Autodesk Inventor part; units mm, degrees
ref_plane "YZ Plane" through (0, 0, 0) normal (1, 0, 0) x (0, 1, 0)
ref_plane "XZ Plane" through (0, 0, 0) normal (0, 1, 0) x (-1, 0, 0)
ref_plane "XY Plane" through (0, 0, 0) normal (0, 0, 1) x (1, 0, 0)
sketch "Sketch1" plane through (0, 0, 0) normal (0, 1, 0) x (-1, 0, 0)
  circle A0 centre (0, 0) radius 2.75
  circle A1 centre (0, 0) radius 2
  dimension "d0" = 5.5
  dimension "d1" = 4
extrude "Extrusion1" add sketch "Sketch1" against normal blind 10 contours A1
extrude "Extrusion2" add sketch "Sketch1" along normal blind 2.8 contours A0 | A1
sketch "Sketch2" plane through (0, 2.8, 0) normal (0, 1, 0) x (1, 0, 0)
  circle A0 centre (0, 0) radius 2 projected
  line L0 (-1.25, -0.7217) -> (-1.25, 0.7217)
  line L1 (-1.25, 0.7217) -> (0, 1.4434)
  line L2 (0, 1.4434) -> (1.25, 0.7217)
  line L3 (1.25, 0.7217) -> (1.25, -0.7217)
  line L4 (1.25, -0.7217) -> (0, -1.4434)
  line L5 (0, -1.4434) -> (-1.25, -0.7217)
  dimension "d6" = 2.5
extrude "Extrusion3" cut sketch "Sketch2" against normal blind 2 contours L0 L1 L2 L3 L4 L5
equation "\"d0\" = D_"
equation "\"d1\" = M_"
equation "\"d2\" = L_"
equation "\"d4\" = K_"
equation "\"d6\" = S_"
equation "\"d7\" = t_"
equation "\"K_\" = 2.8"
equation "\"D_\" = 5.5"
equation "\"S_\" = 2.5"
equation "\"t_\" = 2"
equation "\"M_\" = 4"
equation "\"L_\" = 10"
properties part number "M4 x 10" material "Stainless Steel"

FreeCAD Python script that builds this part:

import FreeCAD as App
import Part
import Sketcher
from FreeCAD import Vector
Q = App.Units.Quantity

doc = App.newDocument("Part")
body = doc.addObject("PartDesign::Body", "Body")

sketch1 = body.newObject("Sketcher::SketchObject", "Sketch")
sketch1.AttachmentSupport = (doc.getObject("XZ_Plane"), [""])
sketch1.MapMode = "FlatFace"
sketch1.addGeometry(Part.Circle(Vector(0, 0, 0), Vector(0, 0, 1), 2), False)
sketch1.addConstraint([
    Sketcher.Constraint("Coincident", 0, 3, -1, 1),
    Sketcher.Constraint("Diameter", 0, Q("4 mm")),
])
pad1 = body.newObject("PartDesign::Pad", "Pad")
pad1.Profile = sketch1
pad1.Length = 10

sketch2 = body.newObject("Sketcher::SketchObject", "Sketch001")
sketch2.AttachmentSupport = (doc.getObject("XZ_Plane"), [""])
sketch2.MapMode = "FlatFace"
sketch2.addGeometry(Part.Circle(Vector(0, 0, 0), Vector(0, 0, 1), 2.8), False)
sketch2.addConstraint([
    Sketcher.Constraint("Coincident", 0, 3, -1, 1),
    Sketcher.Constraint("Diameter", 0, Q("5.5 mm")),
])
pad2 = body.newObject("PartDesign::Pad", "Pad001")
pad2.Profile = sketch2
pad2.Length = 2.8
pad2.Reversed = True

sketch3 = body.newObject("Sketcher::SketchObject", "Sketch002")
sketch3.AttachmentSupport = (doc.getObject("XZ_Plane"), [""])
sketch3.MapMode = "FlatFace"
sketch3.AttachmentOffset = App.Placement(Vector(0, 0, -2.8), App.Rotation())
sketch3.addGeometry([
    Part.LineSegment(Vector(-1.2, -0.7, 0), Vector(-1.2, 0.7, 0)),
    Part.LineSegment(Vector(-1.2, 0.7, 0), Vector(0, 1.4, 0)),
    Part.LineSegment(Vector(0, 1.4, 0), Vector(1.2, 0.7, 0)),
    Part.LineSegment(Vector(1.2, 0.7, 0), Vector(1.2, -0.7, 0)),
    Part.LineSegment(Vector(1.2, -0.7, 0), Vector(0, -1.4, 0)),
    Part.LineSegment(Vector(0, -1.4, 0), Vector(-1.2, -0.7, 0)),
], False)
sketch3.addConstraint([
    Sketcher.Constraint("Coincident", 0, 2, 1, 1),
    Sketcher.Constraint("Coincident", 1, 2, 2, 1),
    Sketcher.Constraint("Coincident", 2, 2, 3, 1),
    Sketcher.Constraint("Coincident", 3, 2, 4, 1),
    Sketcher.Constraint("Coincident", 4, 2, 5, 1),
    Sketcher.Constraint("Coincident", 5, 2, 0, 1),
    Sketcher.Constraint("Vertical", 0),
    Sketcher.Constraint("Vertical", 3),
    Sketcher.Constraint("Symmetric", 0, 2, 3, 2, -1, 1),
    Sketcher.Constraint("Symmetric", 1, 2, 4, 2, -1, 1),
    Sketcher.Constraint("PointOnObject", 1, 2, -2),
    Sketcher.Constraint("Parallel", 2, 5),
    Sketcher.Constraint("Horizontal", 0, 2, 2, 2),
    Sketcher.Constraint("DistanceX", 0, 2, 2, 2, Q("2.5 mm")),
    Sketcher.Constraint("Angle", 1, Q("30.0004 deg")),
    Sketcher.Constraint("DistanceY", 0, 1, 0, 2, Q("1.4434 mm")),
])
pocket1 = body.newObject("PartDesign::Pocket", "Pocket")
pocket1.Profile = sketch3
pocket1.Length = 2
pocket1.Reversed = True

doc.recompute()
